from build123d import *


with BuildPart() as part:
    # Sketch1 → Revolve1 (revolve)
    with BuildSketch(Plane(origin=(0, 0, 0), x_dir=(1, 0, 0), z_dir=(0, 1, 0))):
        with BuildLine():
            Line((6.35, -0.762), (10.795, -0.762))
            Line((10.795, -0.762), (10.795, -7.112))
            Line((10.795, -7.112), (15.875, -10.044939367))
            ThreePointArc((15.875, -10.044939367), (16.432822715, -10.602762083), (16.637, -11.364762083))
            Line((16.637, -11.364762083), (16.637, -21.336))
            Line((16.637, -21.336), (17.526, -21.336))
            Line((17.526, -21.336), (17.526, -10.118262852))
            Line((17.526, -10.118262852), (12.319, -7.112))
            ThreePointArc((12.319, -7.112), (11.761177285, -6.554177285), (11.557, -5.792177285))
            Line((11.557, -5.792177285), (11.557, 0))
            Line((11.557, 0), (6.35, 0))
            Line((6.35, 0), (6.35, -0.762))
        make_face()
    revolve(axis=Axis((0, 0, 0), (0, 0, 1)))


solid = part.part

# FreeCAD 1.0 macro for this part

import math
import FreeCAD as App
import Part
import Sketcher
Q = App.Units.Quantity

doc = App.newDocument("Part")
body = doc.addObject("PartDesign::Body", "Body")

# Sketch on XZ plane
sketch1 = body.newObject("Sketcher::SketchObject", "Sketch")
sketch1.AttachmentSupport = (doc.getObject("XZ_Plane"), [""])
sketch1.MapMode = "FlatFace"
sketch1.addGeometry(Part.LineSegment(App.Vector(6.3, 0.8, 0), App.Vector(10.8, 0.8, 0)), False)
sketch1.addGeometry(Part.LineSegment(App.Vector(10.8, 0.8, 0), App.Vector(10.8, 7.1, 0)), False)
sketch1.addGeometry(Part.LineSegment(App.Vector(10.8, 7.1, 0), App.Vector(15.9, 10, 0)), False)
sketch1.addGeometry(Part.ArcOfCircle(Part.Circle(App.Vector(15.1, 11.4, 0), App.Vector(0, 0, 1), 1.5), math.radians(-60), math.radians(0)), False)
sketch1.addGeometry(Part.LineSegment(App.Vector(16.6, 11.4, 0), App.Vector(16.6, 21.3, 0)), False)
sketch1.addGeometry(Part.LineSegment(App.Vector(16.6, 21.3, 0), App.Vector(17.5, 21.3, 0)), False)
sketch1.addGeometry(Part.LineSegment(App.Vector(17.5, 21.3, 0), App.Vector(17.5, 10.1, 0)), False)
sketch1.addGeometry(Part.LineSegment(App.Vector(17.5, 10.1, 0), App.Vector(12.3, 7.1, 0)), False)
sketch1.addGeometry(Part.ArcOfCircle(Part.Circle(App.Vector(13.1, 5.8, 0), App.Vector(0, 0, 1), 1.5), math.radians(120), math.radians(180)), False)
sketch1.addGeometry(Part.LineSegment(App.Vector(11.6, 5.8, 0), App.Vector(11.6, 0, 0)), False)
sketch1.addGeometry(Part.LineSegment(App.Vector(11.6, 0, 0), App.Vector(6.3, 0, 0)), False)
sketch1.addGeometry(Part.LineSegment(App.Vector(6.3, 0, 0), App.Vector(6.3, 0.8, 0)), False)
sketch1.addConstraint(Sketcher.Constraint("Coincident", 0, 2, 1, 1))
sketch1.addConstraint(Sketcher.Constraint("Coincident", 1, 2, 2, 1))
sketch1.addConstraint(Sketcher.Constraint("Tangent", 2, 2, 3, 1))
sketch1.addConstraint(Sketcher.Constraint("Tangent", 3, 2, 4, 1))
sketch1.addConstraint(Sketcher.Constraint("Coincident", 4, 2, 5, 1))
sketch1.addConstraint(Sketcher.Constraint("Coincident", 5, 2, 6, 1))
sketch1.addConstraint(Sketcher.Constraint("Coincident", 6, 2, 7, 1))
sketch1.addConstraint(Sketcher.Constraint("Tangent", 7, 2, 8, 1))
sketch1.addConstraint(Sketcher.Constraint("Tangent", 8, 2, 9, 1))
sketch1.addConstraint(Sketcher.Constraint("Coincident", 9, 2, 10, 1))
sketch1.addConstraint(Sketcher.Constraint("Coincident", 10, 2, 11, 1))
sketch1.addConstraint(Sketcher.Constraint("Coincident", 11, 2, 0, 1))
sketch1.addConstraint(Sketcher.Constraint("Horizontal", 0))
sketch1.addConstraint(Sketcher.Constraint("Vertical", 1))
sketch1.addConstraint(Sketcher.Constraint("Vertical", 4))
sketch1.addConstraint(Sketcher.Constraint("Horizontal", 5))
sketch1.addConstraint(Sketcher.Constraint("Vertical", 6))
sketch1.addConstraint(Sketcher.Constraint("Vertical", 9))
sketch1.addConstraint(Sketcher.Constraint("Horizontal", 10))
sketch1.addConstraint(Sketcher.Constraint("Vertical", 11))
sketch1.addConstraint(Sketcher.Constraint("Equal", 3, 8))
sketch1.addConstraint(Sketcher.Constraint("PointOnObject", 9, 2, -1))
sketch1.addConstraint(Sketcher.Constraint("Parallel", 2, 7))
sketch1.addConstraint(Sketcher.Constraint("Horizontal", 1, 2, 7, 2))
sketch1.addConstraint(Sketcher.Constraint("Radius", 3, Q("0.06 in")))
sketch1.addConstraint(Sketcher.Constraint("Angle", 2, Q("30 deg")))
sketch1.addConstraint(Sketcher.Constraint("DistanceY", 1, 1, 1, 2, Q("0.25 in")))
sketch1.addConstraint(Sketcher.Constraint("DistanceY", 11, 1, 11, 2, Q("0.03 in")))
sketch1.addConstraint(Sketcher.Constraint("DistanceX", 1, 2, 2, 2, Q("0.2 in")))
sketch1.addConstraint(Sketcher.Constraint("DistanceX", 0, 1, 0, 2, Q("0.175 in")))
sketch1.addConstraint(Sketcher.Constraint("DistanceX", 5, 1, 5, 2, Q("0.035 in")))
sketch1.addConstraint(Sketcher.Constraint("DistanceX", 10, 2, 10, 1, Q("0.205 in")))
sketch1.addConstraint(Sketcher.Constraint("DistanceY", -1, 1, 4, 2, Q("0.84 in")))
sketch1.addConstraint(Sketcher.Constraint("DistanceX", -1, 1, 5, 2, Q("0.69 in")))
revolution = body.newObject("PartDesign::Revolution", "Revolution")
revolution.Profile = sketch1
revolution.ReferenceAxis = (sketch1, ["V_Axis"])
revolution.Angle = 360

doc.recompute()
